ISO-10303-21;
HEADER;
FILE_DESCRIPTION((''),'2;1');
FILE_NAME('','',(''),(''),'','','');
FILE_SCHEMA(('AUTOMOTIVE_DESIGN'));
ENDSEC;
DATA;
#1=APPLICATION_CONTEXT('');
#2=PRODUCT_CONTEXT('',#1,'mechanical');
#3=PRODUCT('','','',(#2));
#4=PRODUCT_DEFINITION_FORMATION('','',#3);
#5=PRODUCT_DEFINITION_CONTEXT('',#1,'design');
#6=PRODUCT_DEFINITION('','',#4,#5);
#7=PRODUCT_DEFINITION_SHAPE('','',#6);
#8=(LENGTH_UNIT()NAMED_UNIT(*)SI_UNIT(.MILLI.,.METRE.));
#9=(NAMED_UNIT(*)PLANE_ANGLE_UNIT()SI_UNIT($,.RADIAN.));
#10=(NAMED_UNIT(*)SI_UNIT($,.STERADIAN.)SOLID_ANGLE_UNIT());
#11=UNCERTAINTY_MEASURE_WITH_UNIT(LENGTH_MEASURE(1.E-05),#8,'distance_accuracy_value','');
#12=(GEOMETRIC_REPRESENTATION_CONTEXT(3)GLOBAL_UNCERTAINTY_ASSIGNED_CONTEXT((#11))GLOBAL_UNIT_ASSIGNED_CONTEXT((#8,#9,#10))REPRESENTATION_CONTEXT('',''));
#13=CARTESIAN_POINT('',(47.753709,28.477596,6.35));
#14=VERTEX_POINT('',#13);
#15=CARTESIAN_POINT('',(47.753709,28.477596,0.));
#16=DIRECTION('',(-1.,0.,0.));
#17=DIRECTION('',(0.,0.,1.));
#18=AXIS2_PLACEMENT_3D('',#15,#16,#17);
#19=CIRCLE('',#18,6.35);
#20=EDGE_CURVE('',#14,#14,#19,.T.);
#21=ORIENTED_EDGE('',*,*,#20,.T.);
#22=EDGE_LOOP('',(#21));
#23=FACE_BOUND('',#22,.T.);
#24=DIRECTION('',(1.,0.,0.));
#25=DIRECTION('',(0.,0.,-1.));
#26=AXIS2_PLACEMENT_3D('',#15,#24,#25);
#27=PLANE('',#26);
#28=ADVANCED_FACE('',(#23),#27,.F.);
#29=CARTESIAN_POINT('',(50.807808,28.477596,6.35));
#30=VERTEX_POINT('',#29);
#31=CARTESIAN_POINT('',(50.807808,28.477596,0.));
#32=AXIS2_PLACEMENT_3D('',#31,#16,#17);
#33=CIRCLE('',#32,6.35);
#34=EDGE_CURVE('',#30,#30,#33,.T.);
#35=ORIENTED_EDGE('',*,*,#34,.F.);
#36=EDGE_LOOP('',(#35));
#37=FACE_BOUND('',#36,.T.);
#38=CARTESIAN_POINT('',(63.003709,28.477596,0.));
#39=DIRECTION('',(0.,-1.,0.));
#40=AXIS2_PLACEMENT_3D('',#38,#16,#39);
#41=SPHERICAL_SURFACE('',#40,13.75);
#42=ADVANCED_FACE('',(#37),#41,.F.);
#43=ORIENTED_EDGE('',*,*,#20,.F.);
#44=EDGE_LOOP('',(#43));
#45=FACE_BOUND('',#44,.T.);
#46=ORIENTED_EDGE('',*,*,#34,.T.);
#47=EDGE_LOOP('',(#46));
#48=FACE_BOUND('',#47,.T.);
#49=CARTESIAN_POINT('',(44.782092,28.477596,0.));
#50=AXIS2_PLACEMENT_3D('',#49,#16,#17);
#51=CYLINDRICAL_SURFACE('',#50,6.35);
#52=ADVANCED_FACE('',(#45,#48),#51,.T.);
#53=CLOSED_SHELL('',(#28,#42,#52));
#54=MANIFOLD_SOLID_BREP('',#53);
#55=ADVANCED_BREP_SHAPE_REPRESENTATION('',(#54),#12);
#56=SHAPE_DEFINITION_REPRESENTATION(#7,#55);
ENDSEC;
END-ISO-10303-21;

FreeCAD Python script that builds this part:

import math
import FreeCAD as App
import Part
import Sketcher
from FreeCAD import Vector

doc = App.newDocument("Part")
body = doc.addObject("PartDesign::Body", "Body")

# Sketch on XY plane
sketch1 = body.newObject("Sketcher::SketchObject", "Sketch")
sketch1.AttachmentSupport = (doc.getObject("XY_Plane"), [""])
sketch1.MapMode = "FlatFace"
sketch1.addGeometry(Part.LineSegment(Vector(47.8, 34.8, 0), Vector(47.8, 28.5, 0)), False)
sketch1.addGeometry(Part.LineSegment(Vector(47.8, 28.5, 0), Vector(49.3, 28.5, 0)), False)
sketch1.addGeometry(Part.ArcOfCircle(Part.Circle(Vector(63, 28.5, 0), Vector(0, 0, 1), 13.8), math.radians(152), math.radians(180)), False)
sketch1.addGeometry(Part.LineSegment(Vector(50.8, 34.8, 0), Vector(47.8, 34.8, 0)), False)
sketch1.addGeometry(Part.LineSegment(Vector(47.8, 28.5, 0), Vector(63, 28.5, 0)), True)  # axis
sketch1.addConstraint(Sketcher.Constraint("Coincident", 0, 2, 1, 1))
sketch1.addConstraint(Sketcher.Constraint("Coincident", 1, 2, 2, 2))
sketch1.addConstraint(Sketcher.Constraint("Coincident", 2, 1, 3, 1))
sketch1.addConstraint(Sketcher.Constraint("Coincident", 3, 2, 0, 1))
sketch1.addConstraint(Sketcher.Constraint("Vertical", 0))
sketch1.addConstraint(Sketcher.Constraint("Horizontal", 1))
sketch1.addConstraint(Sketcher.Constraint("Horizontal", 3))
sketch1.addConstraint(Sketcher.Constraint("Horizontal", 4))
sketch1.addConstraint(Sketcher.Constraint("Coincident", 4, 1, 0, 2))
sketch1.addConstraint(Sketcher.Constraint("Coincident", 4, 2, 2, 3))
sketch1.addConstraint(Sketcher.Constraint("Radius", 2, 13.75))
sketch1.addConstraint(Sketcher.Constraint("DistanceX", 1, 1, 1, 2, 1.5))
sketch1.addConstraint(Sketcher.Constraint("DistanceY", 0, 2, 0, 1, 6.35))
sketch1.addConstraint(Sketcher.Constraint("DistanceX", -1, 1, 2, 3, 63.003709))
sketch1.addConstraint(Sketcher.Constraint("DistanceY", -1, 1, 2, 3, 28.477596))
revolution = body.newObject("PartDesign::Revolution", "Revolution")
revolution.Profile = sketch1
revolution.ReferenceAxis = (sketch1, ["Axis0"])
revolution.Angle = 360

doc.recompute()
